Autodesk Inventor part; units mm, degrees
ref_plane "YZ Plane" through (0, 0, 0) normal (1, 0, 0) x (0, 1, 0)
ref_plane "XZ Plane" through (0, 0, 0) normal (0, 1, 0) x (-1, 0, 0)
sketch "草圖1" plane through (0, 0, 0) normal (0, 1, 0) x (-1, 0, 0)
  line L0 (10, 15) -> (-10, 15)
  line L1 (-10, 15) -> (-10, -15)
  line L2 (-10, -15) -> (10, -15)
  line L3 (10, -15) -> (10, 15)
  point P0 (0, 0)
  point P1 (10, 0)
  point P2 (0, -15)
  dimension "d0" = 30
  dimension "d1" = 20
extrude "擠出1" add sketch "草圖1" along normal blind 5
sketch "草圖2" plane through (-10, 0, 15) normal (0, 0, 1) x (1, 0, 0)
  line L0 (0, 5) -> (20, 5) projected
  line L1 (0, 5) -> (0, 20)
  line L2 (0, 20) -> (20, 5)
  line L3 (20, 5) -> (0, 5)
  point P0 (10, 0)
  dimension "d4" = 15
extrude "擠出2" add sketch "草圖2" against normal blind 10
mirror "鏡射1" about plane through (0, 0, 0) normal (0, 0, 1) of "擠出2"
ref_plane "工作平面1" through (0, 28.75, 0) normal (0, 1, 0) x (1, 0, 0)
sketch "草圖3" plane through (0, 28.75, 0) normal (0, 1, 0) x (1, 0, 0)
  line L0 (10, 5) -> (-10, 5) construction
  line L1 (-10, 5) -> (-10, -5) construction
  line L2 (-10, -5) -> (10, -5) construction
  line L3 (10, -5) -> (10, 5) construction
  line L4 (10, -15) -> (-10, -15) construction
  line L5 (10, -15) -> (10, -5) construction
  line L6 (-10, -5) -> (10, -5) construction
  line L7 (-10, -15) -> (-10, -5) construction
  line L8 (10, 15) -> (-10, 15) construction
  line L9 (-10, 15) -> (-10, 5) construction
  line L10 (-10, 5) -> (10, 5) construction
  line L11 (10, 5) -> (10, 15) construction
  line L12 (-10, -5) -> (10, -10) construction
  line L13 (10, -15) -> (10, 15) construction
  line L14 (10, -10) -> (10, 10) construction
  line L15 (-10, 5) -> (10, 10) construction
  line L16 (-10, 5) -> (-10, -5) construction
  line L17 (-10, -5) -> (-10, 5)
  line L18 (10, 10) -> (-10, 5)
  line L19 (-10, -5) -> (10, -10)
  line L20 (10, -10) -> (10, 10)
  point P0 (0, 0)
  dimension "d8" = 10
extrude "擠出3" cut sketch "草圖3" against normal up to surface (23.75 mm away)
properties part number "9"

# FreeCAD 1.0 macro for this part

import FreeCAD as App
import Part
import Sketcher

V = App.Vector

doc = App.newDocument("Part")
body = doc.addObject("PartDesign::Body", "Body")

# Sketch on XZ plane
sketch1 = body.newObject("Sketcher::SketchObject", "Sketch")
sketch1.AttachmentSupport = (doc.getObject("XZ_Plane"), [""])
sketch1.MapMode = "FlatFace"
sketch1.addGeometry([
    Part.LineSegment(V(-10, -15, 0), V(-10, 15, 0)),
    Part.LineSegment(V(-10, 15, 0), V(10, 15, 0)),
    Part.LineSegment(V(10, 15, 0), V(10, -15, 0)),
    Part.LineSegment(V(10, -15, 0), V(-10, -15, 0)),
], False)
sketch1.addConstraint([
    Sketcher.Constraint("Coincident", 0, 2, 1, 1),
    Sketcher.Constraint("Coincident", 1, 2, 2, 1),
    Sketcher.Constraint("Coincident", 2, 2, 3, 1),
    Sketcher.Constraint("Coincident", 3, 2, 0, 1),
    Sketcher.Constraint("Vertical", 0),
    Sketcher.Constraint("Horizontal", 1),
    Sketcher.Constraint("Vertical", 2),
    Sketcher.Constraint("Horizontal", 3),
    Sketcher.Constraint("Symmetric", 0, 2, 2, 2, -1, 1),
    Sketcher.Constraint("DistanceX", 1, 1, 1, 2, 20.0),
    Sketcher.Constraint("DistanceY", 0, 1, 0, 2, 30.0),
])
pad1 = body.newObject("PartDesign::Pad", "Pad")
pad1.Profile = sketch1
pad1.Length = 5
pad1.Reversed = True

# Sketch on XY plane
sketch2 = body.newObject("Sketcher::SketchObject", "Sketch001")
sketch2.AttachmentSupport = (doc.getObject("XY_Plane"), [""])
sketch2.MapMode = "FlatFace"
sketch2.AttachmentOffset = App.Placement(V(0, 0, 15), App.Rotation())
sketch2.addGeometry([
    Part.LineSegment(V(-10, 20, 0), V(-10, 5, 0)),
    Part.LineSegment(V(-10, 5, 0), V(10, 5, 0)),
    Part.LineSegment(V(10, 5, 0), V(-10, 20, 0)),
], False)
sketch2.addConstraint([
    Sketcher.Constraint("Coincident", 0, 2, 1, 1),
    Sketcher.Constraint("Coincident", 1, 2, 2, 1),
    Sketcher.Constraint("Coincident", 2, 2, 0, 1),
    Sketcher.Constraint("Vertical", 0),
    Sketcher.Constraint("Horizontal", 1),
    Sketcher.Constraint("DistanceY", 0, 2, 0, 1, 15.0),
    Sketcher.Constraint("DistanceX", 1, 1, 1, 2, 20.0),
    Sketcher.Constraint("DistanceX", 0, 2, -1, 1, 10.0),
    Sketcher.Constraint("DistanceY", -1, 1, 0, 2, 5.0),
])
pad2 = body.newObject("PartDesign::Pad", "Pad001")
pad2.Profile = sketch2
pad2.Length = 10
pad2.Reversed = True
doc.recompute()

mirrored = body.newObject("PartDesign::Mirrored", "Mirrored")
mirrored.Originals = [pad2]
mirrored.MirrorPlane = (doc.getObject("XY_Plane"), [""])
body.Tip = mirrored

# Sketch on XZ plane
sketch3 = body.newObject("Sketcher::SketchObject", "Sketch002")
sketch3.AttachmentSupport = (doc.getObject("XZ_Plane"), [""])
sketch3.MapMode = "FlatFace"
sketch3.AttachmentOffset = App.Placement(V(0, 0, -28.75), App.Rotation())
sketch3.addGeometry([
    Part.LineSegment(V(-10, -5, 0), V(-10, 5, 0)),
    Part.LineSegment(V(-10, 5, 0), V(10, 10, 0)),
    Part.LineSegment(V(10, 10, 0), V(10, -10, 0)),
    Part.LineSegment(V(10, -10, 0), V(-10, -5, 0)),
], False)
sketch3.addConstraint([
    Sketcher.Constraint("Coincident", 0, 2, 1, 1),
    Sketcher.Constraint("Coincident", 1, 2, 2, 1),
    Sketcher.Constraint("Coincident", 2, 2, 3, 1),
    Sketcher.Constraint("Coincident", 3, 2, 0, 1),
    Sketcher.Constraint("Vertical", 0),
    Sketcher.Constraint("Vertical", 2),
    Sketcher.Constraint("Equal", 1, 3),
    Sketcher.Constraint("DistanceY", 0, 1, 0, 2, 10.0),
    Sketcher.Constraint("DistanceX", 0, 2, -1, 1, 10.0),
    Sketcher.Constraint("DistanceX", -1, 1, 1, 2, 10.0),
    Sketcher.Constraint("DistanceY", -1, 1, 1, 2, 10.0),
    Sketcher.Constraint("DistanceY", 2, 2, -1, 1, 10.0),
])
pocket1 = body.newObject("PartDesign::Pocket", "Pocket")
pocket1.Profile = sketch3
pocket1.Length = 23.75
pocket1.Reversed = True

doc.recompute()
